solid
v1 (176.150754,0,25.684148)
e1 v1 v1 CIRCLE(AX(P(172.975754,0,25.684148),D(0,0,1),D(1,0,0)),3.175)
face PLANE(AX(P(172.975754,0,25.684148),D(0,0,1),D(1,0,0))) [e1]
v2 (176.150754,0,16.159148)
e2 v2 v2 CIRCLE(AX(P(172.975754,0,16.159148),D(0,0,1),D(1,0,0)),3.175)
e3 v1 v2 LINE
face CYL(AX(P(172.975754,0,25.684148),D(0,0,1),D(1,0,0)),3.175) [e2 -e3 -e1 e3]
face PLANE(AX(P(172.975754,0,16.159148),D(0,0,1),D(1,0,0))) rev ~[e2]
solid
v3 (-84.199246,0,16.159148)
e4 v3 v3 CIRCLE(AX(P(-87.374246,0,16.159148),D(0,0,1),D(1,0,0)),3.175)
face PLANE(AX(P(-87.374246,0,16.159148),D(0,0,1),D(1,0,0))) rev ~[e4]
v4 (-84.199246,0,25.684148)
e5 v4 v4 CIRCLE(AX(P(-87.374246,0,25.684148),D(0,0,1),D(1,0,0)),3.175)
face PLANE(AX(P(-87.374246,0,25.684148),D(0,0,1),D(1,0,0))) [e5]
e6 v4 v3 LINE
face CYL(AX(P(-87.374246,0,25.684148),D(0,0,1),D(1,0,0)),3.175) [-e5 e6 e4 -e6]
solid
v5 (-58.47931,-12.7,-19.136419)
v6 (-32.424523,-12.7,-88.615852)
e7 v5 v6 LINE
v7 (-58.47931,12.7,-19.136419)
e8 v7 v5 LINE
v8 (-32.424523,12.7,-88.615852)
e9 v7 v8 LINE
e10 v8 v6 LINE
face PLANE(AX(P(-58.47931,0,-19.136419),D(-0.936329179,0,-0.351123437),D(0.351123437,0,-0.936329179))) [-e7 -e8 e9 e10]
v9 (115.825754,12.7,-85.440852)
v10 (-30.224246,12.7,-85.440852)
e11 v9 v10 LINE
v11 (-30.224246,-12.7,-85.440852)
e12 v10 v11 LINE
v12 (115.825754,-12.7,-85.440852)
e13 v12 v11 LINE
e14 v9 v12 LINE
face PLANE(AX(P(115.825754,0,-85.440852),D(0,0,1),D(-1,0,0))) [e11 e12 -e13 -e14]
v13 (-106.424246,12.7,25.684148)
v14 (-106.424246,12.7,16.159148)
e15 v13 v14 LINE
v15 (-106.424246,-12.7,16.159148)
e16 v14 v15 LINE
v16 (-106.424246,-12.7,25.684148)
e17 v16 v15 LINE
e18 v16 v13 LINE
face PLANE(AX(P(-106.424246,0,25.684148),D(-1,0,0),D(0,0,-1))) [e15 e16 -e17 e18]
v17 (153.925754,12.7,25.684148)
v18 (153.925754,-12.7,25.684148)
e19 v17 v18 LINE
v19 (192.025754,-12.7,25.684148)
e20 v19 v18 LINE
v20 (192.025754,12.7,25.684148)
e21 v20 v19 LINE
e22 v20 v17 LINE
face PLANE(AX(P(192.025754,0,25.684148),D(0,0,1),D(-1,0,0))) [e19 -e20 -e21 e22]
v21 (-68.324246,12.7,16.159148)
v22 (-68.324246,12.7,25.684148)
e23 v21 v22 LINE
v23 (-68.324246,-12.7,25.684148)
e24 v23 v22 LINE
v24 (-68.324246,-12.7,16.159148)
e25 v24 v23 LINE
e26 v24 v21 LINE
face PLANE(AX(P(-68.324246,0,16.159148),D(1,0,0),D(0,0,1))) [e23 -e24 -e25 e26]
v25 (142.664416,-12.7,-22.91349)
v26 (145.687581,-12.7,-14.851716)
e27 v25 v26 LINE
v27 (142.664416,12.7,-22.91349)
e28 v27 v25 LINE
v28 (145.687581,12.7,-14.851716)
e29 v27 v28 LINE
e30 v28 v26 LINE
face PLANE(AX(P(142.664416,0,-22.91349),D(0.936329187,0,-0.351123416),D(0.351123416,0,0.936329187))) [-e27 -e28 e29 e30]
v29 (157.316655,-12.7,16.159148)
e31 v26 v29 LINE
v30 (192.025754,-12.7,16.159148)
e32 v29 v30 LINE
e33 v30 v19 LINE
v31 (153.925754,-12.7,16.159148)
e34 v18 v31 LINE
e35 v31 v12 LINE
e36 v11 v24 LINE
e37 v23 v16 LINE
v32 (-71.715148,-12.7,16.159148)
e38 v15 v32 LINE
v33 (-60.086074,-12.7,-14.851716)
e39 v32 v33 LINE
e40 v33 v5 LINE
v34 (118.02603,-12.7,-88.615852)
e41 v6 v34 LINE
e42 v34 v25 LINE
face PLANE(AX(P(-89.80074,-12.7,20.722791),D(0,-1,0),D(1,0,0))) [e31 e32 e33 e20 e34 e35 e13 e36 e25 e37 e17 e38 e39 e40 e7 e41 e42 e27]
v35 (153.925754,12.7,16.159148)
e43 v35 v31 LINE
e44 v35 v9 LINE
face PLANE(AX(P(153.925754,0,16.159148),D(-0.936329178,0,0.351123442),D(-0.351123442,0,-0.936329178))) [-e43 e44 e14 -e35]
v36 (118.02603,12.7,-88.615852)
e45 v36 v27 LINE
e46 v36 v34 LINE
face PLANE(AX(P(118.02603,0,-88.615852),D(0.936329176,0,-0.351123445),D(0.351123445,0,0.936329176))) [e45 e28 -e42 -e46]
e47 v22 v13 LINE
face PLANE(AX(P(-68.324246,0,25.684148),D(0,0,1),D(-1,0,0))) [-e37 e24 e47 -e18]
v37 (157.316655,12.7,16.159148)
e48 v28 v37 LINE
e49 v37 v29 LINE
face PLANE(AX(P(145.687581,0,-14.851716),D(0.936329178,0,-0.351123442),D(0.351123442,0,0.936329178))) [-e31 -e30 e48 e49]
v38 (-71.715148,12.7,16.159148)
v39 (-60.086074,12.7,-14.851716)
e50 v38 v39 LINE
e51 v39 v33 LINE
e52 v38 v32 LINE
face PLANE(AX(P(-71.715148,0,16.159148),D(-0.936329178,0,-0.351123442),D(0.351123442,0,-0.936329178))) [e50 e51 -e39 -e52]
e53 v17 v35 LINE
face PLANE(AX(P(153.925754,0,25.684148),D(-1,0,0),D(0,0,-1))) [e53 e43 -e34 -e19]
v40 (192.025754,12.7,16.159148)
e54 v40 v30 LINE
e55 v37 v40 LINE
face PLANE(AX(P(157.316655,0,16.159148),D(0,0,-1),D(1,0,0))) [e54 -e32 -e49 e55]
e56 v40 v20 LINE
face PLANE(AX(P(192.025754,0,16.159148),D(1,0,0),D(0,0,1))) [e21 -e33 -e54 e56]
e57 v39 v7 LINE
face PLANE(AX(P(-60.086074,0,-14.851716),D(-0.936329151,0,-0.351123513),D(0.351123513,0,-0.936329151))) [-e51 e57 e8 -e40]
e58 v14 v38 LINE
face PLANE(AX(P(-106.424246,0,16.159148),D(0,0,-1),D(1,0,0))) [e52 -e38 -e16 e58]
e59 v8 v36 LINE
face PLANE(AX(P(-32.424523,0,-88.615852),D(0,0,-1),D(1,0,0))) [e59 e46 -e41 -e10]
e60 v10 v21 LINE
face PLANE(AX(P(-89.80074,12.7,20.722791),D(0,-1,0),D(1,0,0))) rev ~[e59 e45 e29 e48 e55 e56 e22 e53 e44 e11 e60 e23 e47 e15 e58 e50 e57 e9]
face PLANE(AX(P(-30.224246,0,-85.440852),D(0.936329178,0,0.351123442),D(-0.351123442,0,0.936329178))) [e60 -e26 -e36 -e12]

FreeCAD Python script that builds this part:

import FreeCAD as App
import Part
import Sketcher
Q = App.Units.Quantity


def add_polygon(sketch, points):
    """Adds a closed chain of lines whose ends are joined by coincident constraints."""
    first, n = sketch.GeometryCount, len(points)
    for a, b in zip(points, points[1:] + points[:1]):
        sketch.addGeometry(Part.LineSegment(App.Vector(*a, 0), App.Vector(*b, 0)), False)
    for i in range(n):
        sketch.addConstraint(Sketcher.Constraint("Coincident", first + i, 2, first + (i + 1) % n, 1))

doc = App.newDocument("Part")
body = doc.addObject("PartDesign::Body", "Body")

sketch1 = body.newObject("Sketcher::SketchObject", "Sketch")
sketch1.AttachmentSupport = (doc.getObject("XZ_Plane"), [""])
sketch1.MapMode = "FlatFace"
add_polygon(sketch1, [(-106.424246, 25.684148), (-106.424246, 16.159148), (-71.715148, 16.159148), (-60.086074, -14.851716), (-58.47931, -19.136419), (-32.424523, -88.615852), (118.02603, -88.615852), (142.664416, -22.91349), (145.687581, -14.851716), (157.316655, 16.159148), (192.025754, 16.159148), (192.025754, 25.684148), (153.925754, 25.684148), (153.925754, 16.159148), (115.825754, -85.440852), (-30.224246, -85.440852), (-68.324246, 16.159148), (-68.324246, 25.684148)])
sketch1.addConstraint(Sketcher.Constraint("Vertical", 0))
sketch1.addConstraint(Sketcher.Constraint("Horizontal", 1))
sketch1.addConstraint(Sketcher.Constraint("Horizontal", 5))
sketch1.addConstraint(Sketcher.Constraint("Horizontal", 9))
sketch1.addConstraint(Sketcher.Constraint("Vertical", 10))
sketch1.addConstraint(Sketcher.Constraint("Horizontal", 11))
sketch1.addConstraint(Sketcher.Constraint("Vertical", 12))
sketch1.addConstraint(Sketcher.Constraint("Horizontal", 14))
sketch1.addConstraint(Sketcher.Constraint("Vertical", 16))
sketch1.addConstraint(Sketcher.Constraint("Horizontal", 17))
sketch1.addConstraint(Sketcher.Constraint("Parallel", 2, 3))
sketch1.addConstraint(Sketcher.Constraint("Parallel", 3, 4))
sketch1.addConstraint(Sketcher.Constraint("Parallel", 6, 7))
sketch1.addConstraint(Sketcher.Constraint("Parallel", 7, 8))
sketch1.addConstraint(Sketcher.Constraint("Parallel", 8, 13))
sketch1.addConstraint(Sketcher.Constraint("Parallel", 4, 15))
sketch1.addConstraint(Sketcher.Constraint("Horizontal", 2, 2, 7, 2))
sketch1.addConstraint(Sketcher.Constraint("Horizontal", 1, 2, 8, 2))
sketch1.addConstraint(Sketcher.Constraint("Horizontal", 9, 2, 12, 2))
sketch1.addConstraint(Sketcher.Constraint("Horizontal", 12, 2, 15, 2))
sketch1.addConstraint(Sketcher.Constraint("Horizontal", 11, 2, 16, 2))
sketch1.addConstraint(Sketcher.Constraint("Equal", 1, 9))
sketch1.addConstraint(Sketcher.Constraint("Equal", 11, 17))
sketch1.addConstraint(Sketcher.Constraint("Equal", 2, 8))
sketch1.addConstraint(Sketcher.Constraint("DistanceX", 11, 2, 11, 1, Q("1.5 in")))
sketch1.addConstraint(Sketcher.Constraint("DistanceY", 13, 2, 12, 2, Q("4 in")))
sketch1.addConstraint(Sketcher.Constraint("DistanceX", 0, 2, 14, 2, Q("3 in")))
sketch1.addConstraint(Sketcher.Constraint("DistanceX", 14, 2, 14, 1, Q("5.75 in")))
sketch1.addConstraint(Sketcher.Constraint("DistanceY", 5, 2, 10, 2, Q("4.5 in")))
sketch1.addConstraint(Sketcher.Constraint("DistanceY", 0, 2, 0, 1, Q("0.375 in")))
sketch1.addConstraint(Sketcher.Constraint("DistanceX", 1, 1, 1, 2, Q("1.3664999 in")))
sketch1.addConstraint(Sketcher.Constraint("DistanceY", 2, 2, 1, 2, Q("1.2209002 in")))
sketch1.addConstraint(Sketcher.Constraint("Distance", 7, 8.609978))
sketch1.addConstraint(Sketcher.Constraint("DistanceX", 1, 2, -1, 1, 71.715148))
sketch1.addConstraint(Sketcher.Constraint("DistanceX", 3, 2, -1, 1, 58.47931))
sketch1.addConstraint(Sketcher.Constraint("DistanceY", 3, 2, -1, 1, 19.136419))
pad1 = body.newObject("PartDesign::Pad", "Pad")
pad1.Profile = sketch1
pad1.Length = Q("1 in")
pad1.Midplane = True
body2 = doc.addObject("PartDesign::Body", "Body001")

sketch2 = body2.newObject("Sketcher::SketchObject", "Sketch001")
sketch2.AttachmentSupport = (doc.getObject("XY_Plane001"), [""])
sketch2.MapMode = "FlatFace"
sketch2.AttachmentOffset = App.Placement(App.Vector(0, 0, 25.684148), App.Rotation())
sketch2.addGeometry(Part.Circle(App.Vector(-87.374246, 0, 0), App.Vector(0, 0, 1), 3.175), False)
sketch2.addConstraint(Sketcher.Constraint("PointOnObject", 0, 3, -1))
sketch2.addConstraint(Sketcher.Constraint("Diameter", 0, Q("0.25 in")))
sketch2.addConstraint(Sketcher.Constraint("DistanceX", 0, 3, -1, 1, 87.374246))
pad2 = body2.newObject("PartDesign::Pad", "Pad001")
pad2.Profile = sketch2
pad2.Length = Q("0.375 in")
pad2.Reversed = True
body3 = doc.addObject("PartDesign::Body", "Body002")

sketch3 = body3.newObject("Sketcher::SketchObject", "Sketch002")
sketch3.AttachmentSupport = (doc.getObject("XY_Plane002"), [""])
sketch3.MapMode = "FlatFace"
sketch3.AttachmentOffset = App.Placement(App.Vector(0, 0, 25.684148), App.Rotation())
sketch3.addGeometry(Part.Circle(App.Vector(172.975754, 0, 0), App.Vector(0, 0, 1), 3.175), False)
sketch3.addConstraint(Sketcher.Constraint("PointOnObject", 0, 3, -1))
sketch3.addConstraint(Sketcher.Constraint("Diameter", 0, Q("0.25 in")))
sketch3.addConstraint(Sketcher.Constraint("DistanceX", -1, 1, 0, 3, 172.975754))
pad3 = body3.newObject("PartDesign::Pad", "Pad002")
pad3.Profile = sketch3
pad3.Length = Q("0.375 in")
pad3.Reversed = True

doc.recompute()
